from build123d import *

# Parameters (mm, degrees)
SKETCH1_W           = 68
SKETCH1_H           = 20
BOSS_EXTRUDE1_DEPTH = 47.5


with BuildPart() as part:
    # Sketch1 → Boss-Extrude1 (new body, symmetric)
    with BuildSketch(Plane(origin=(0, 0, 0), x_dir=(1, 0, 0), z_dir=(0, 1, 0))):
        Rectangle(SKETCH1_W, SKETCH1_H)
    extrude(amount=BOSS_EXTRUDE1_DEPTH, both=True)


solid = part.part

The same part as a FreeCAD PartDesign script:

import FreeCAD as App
import Part
import Sketcher

V = App.Vector
Q = App.Units.Quantity


def add_polygon(sketch, points):
    """Adds a closed chain of lines whose ends are joined by coincident constraints."""
    first, n = sketch.GeometryCount, len(points)
    for a, b in zip(points, points[1:] + points[:1]):
        sketch.addGeometry(Part.LineSegment(App.Vector(*a, 0), App.Vector(*b, 0)), False)
    for i in range(n):
        sketch.addConstraint(Sketcher.Constraint("Coincident", first + i, 2, first + (i + 1) % n, 1))

doc = App.newDocument("Part")
body = doc.addObject("PartDesign::Body", "Body")

# Sketch on XZ plane
sketch1 = doc.addObject("Sketcher::SketchObject", "Sketch")
body.addObject(sketch1)
sketch1.AttachmentSupport = (doc.XZ_Plane, [""])
sketch1.MapMode = "FlatFace"
add_polygon(sketch1, [(-34, -10), (-34, 10), (34, 10), (34, -10)])  # lines 0-3
sketch1.addConstraint([
    Sketcher.Constraint("Vertical", 0),
    Sketcher.Constraint("Horizontal", 1),
    Sketcher.Constraint("Vertical", 2),
    Sketcher.Constraint("Horizontal", 3),
    Sketcher.Constraint("Symmetric", 0, 2, 2, 2, -1, 1),
    Sketcher.Constraint("DistanceX", 1, 1, 1, 2, Q("68 mm")),
    Sketcher.Constraint("DistanceY", 0, 1, 0, 2, Q("20 mm")),
])
pad1 = doc.addObject("PartDesign::Pad", "Pad")
body.addObject(pad1)
pad1.Profile = sketch1
pad1.Length = 95
pad1.Midplane = True

doc.recompute()
